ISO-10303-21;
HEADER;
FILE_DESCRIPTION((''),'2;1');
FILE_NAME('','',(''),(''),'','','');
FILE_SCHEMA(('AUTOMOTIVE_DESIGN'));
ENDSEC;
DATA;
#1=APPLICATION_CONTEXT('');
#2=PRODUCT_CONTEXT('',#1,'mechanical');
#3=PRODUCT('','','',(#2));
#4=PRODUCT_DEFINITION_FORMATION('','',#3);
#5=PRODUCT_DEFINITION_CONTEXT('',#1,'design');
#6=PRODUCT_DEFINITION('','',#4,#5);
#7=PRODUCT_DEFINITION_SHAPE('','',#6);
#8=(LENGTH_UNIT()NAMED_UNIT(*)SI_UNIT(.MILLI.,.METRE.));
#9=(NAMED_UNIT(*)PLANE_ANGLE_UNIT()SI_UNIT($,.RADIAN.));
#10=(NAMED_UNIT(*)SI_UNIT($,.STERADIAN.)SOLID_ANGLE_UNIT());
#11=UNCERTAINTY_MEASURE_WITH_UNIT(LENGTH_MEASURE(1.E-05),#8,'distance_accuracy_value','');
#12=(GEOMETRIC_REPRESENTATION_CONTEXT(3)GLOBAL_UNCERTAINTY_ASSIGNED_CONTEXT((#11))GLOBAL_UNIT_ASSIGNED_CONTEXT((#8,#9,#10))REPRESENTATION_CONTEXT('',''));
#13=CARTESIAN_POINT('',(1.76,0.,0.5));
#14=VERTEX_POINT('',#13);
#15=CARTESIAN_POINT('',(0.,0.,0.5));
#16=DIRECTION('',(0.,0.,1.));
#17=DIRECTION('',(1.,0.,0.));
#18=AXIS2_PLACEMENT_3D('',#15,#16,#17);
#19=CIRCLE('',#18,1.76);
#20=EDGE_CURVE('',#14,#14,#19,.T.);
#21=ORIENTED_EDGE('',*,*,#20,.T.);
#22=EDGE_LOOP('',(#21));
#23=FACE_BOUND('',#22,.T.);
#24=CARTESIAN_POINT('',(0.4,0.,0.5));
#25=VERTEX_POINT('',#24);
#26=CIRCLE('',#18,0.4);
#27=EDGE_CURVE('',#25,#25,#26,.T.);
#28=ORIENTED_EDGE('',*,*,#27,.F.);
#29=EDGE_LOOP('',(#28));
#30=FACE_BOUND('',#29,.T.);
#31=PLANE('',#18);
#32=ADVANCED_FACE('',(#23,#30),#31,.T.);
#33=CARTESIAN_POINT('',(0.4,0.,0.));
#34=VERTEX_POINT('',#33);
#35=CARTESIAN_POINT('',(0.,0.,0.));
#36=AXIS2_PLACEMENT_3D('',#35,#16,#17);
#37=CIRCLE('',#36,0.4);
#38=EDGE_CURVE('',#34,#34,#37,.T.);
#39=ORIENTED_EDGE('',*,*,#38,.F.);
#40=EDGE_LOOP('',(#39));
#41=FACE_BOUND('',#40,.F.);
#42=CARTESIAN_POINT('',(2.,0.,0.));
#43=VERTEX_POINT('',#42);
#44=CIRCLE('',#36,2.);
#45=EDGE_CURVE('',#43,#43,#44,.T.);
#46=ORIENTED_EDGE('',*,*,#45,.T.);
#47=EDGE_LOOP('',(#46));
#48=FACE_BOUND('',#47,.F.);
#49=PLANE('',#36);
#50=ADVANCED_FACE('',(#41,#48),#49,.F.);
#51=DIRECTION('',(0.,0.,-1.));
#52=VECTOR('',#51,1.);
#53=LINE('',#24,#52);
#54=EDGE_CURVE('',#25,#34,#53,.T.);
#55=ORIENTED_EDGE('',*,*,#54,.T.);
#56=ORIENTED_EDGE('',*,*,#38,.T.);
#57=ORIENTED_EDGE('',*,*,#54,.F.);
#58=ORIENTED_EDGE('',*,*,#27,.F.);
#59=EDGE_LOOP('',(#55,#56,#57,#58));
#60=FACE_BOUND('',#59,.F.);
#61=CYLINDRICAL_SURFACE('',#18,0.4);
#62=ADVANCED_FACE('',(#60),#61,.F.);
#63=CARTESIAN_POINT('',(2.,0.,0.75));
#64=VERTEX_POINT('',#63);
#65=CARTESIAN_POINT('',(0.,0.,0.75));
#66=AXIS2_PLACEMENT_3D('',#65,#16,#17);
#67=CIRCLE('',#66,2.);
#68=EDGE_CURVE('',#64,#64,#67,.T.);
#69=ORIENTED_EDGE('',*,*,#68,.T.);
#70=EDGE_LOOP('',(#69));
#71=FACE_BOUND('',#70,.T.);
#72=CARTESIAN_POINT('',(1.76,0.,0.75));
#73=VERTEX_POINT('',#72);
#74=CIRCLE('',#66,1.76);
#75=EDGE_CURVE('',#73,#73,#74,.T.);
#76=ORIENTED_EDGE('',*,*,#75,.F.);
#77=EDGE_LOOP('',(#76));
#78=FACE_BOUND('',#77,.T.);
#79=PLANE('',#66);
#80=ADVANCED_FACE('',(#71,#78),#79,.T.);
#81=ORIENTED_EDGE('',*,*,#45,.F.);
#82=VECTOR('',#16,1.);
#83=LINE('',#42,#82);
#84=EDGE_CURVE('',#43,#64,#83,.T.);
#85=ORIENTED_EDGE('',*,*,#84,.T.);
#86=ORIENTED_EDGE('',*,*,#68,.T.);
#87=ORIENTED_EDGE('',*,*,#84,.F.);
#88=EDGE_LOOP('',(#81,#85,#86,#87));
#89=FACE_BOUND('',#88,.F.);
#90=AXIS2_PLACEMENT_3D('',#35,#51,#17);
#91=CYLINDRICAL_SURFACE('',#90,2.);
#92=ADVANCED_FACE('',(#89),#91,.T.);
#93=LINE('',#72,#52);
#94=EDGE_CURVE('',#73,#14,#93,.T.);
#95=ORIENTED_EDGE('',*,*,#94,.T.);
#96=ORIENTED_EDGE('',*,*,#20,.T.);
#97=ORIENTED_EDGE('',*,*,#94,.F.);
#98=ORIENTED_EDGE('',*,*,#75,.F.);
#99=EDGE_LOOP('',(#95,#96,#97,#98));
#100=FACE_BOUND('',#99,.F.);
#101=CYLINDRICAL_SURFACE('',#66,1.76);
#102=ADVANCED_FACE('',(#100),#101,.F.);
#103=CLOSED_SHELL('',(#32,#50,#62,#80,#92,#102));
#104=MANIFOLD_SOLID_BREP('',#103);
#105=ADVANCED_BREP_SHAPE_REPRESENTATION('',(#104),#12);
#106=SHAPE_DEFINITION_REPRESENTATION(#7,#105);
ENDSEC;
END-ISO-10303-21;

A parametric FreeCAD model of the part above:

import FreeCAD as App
import Part
import Sketcher

doc = App.newDocument("Part")
body = doc.addObject("PartDesign::Body", "Body")

sketch1 = doc.addObject("Sketcher::SketchObject", "Sketch")
body.addObject(sketch1)
sketch1.AttachmentSupport = (doc.XY_Plane, [""])
sketch1.MapMode = "FlatFace"
sketch1.addGeometry(Part.Circle(App.Vector(0, 0, 0), App.Vector(0, 0, 1), 2), False)
sketch1.addConstraint(Sketcher.Constraint("Coincident", 0, 3, -1, 1))
sketch1.addConstraint(Sketcher.Constraint("Diameter", 0, 4.0))
pad1 = doc.addObject("PartDesign::Pad", "Pad")
body.addObject(pad1)
pad1.Profile = sketch1
pad1.Length = 0.75

sketch2 = doc.addObject("Sketcher::SketchObject", "Sketch001")
body.addObject(sketch2)
sketch2.AttachmentSupport = (doc.XY_Plane, [""])
sketch2.MapMode = "FlatFace"
sketch2.AttachmentOffset = App.Placement(App.Vector(0, 0, 0.75), App.Rotation())
sketch2.addGeometry(Part.Circle(App.Vector(0, 0, 0), App.Vector(0, 0, 1), 1.8), False)
sketch2.addConstraint(Sketcher.Constraint("Coincident", 0, 3, -1, 1))
sketch2.addConstraint(Sketcher.Constraint("Diameter", 0, 3.52))
pocket1 = doc.addObject("PartDesign::Pocket", "Pocket")
body.addObject(pocket1)
pocket1.Profile = sketch2
pocket1.Length = 0.25

sketch3 = doc.addObject("Sketcher::SketchObject", "Sketch002")
body.addObject(sketch3)
sketch3.AttachmentSupport = (doc.XY_Plane, [""])
sketch3.MapMode = "FlatFace"
sketch3.AttachmentOffset = App.Placement(App.Vector(0, 0, 0.5), App.Rotation())
sketch3.addGeometry(Part.Circle(App.Vector(0, 0, 0), App.Vector(0, 0, 1), 0.4), False)
sketch3.addConstraint(Sketcher.Constraint("Coincident", 0, 3, -1, 1))
sketch3.addConstraint(Sketcher.Constraint("Diameter", 0, 0.8))
pocket2 = doc.addObject("PartDesign::Pocket", "Pocket001")
body.addObject(pocket2)
pocket2.Profile = sketch3
pocket2.Type = "ThroughAll"

doc.recompute()
